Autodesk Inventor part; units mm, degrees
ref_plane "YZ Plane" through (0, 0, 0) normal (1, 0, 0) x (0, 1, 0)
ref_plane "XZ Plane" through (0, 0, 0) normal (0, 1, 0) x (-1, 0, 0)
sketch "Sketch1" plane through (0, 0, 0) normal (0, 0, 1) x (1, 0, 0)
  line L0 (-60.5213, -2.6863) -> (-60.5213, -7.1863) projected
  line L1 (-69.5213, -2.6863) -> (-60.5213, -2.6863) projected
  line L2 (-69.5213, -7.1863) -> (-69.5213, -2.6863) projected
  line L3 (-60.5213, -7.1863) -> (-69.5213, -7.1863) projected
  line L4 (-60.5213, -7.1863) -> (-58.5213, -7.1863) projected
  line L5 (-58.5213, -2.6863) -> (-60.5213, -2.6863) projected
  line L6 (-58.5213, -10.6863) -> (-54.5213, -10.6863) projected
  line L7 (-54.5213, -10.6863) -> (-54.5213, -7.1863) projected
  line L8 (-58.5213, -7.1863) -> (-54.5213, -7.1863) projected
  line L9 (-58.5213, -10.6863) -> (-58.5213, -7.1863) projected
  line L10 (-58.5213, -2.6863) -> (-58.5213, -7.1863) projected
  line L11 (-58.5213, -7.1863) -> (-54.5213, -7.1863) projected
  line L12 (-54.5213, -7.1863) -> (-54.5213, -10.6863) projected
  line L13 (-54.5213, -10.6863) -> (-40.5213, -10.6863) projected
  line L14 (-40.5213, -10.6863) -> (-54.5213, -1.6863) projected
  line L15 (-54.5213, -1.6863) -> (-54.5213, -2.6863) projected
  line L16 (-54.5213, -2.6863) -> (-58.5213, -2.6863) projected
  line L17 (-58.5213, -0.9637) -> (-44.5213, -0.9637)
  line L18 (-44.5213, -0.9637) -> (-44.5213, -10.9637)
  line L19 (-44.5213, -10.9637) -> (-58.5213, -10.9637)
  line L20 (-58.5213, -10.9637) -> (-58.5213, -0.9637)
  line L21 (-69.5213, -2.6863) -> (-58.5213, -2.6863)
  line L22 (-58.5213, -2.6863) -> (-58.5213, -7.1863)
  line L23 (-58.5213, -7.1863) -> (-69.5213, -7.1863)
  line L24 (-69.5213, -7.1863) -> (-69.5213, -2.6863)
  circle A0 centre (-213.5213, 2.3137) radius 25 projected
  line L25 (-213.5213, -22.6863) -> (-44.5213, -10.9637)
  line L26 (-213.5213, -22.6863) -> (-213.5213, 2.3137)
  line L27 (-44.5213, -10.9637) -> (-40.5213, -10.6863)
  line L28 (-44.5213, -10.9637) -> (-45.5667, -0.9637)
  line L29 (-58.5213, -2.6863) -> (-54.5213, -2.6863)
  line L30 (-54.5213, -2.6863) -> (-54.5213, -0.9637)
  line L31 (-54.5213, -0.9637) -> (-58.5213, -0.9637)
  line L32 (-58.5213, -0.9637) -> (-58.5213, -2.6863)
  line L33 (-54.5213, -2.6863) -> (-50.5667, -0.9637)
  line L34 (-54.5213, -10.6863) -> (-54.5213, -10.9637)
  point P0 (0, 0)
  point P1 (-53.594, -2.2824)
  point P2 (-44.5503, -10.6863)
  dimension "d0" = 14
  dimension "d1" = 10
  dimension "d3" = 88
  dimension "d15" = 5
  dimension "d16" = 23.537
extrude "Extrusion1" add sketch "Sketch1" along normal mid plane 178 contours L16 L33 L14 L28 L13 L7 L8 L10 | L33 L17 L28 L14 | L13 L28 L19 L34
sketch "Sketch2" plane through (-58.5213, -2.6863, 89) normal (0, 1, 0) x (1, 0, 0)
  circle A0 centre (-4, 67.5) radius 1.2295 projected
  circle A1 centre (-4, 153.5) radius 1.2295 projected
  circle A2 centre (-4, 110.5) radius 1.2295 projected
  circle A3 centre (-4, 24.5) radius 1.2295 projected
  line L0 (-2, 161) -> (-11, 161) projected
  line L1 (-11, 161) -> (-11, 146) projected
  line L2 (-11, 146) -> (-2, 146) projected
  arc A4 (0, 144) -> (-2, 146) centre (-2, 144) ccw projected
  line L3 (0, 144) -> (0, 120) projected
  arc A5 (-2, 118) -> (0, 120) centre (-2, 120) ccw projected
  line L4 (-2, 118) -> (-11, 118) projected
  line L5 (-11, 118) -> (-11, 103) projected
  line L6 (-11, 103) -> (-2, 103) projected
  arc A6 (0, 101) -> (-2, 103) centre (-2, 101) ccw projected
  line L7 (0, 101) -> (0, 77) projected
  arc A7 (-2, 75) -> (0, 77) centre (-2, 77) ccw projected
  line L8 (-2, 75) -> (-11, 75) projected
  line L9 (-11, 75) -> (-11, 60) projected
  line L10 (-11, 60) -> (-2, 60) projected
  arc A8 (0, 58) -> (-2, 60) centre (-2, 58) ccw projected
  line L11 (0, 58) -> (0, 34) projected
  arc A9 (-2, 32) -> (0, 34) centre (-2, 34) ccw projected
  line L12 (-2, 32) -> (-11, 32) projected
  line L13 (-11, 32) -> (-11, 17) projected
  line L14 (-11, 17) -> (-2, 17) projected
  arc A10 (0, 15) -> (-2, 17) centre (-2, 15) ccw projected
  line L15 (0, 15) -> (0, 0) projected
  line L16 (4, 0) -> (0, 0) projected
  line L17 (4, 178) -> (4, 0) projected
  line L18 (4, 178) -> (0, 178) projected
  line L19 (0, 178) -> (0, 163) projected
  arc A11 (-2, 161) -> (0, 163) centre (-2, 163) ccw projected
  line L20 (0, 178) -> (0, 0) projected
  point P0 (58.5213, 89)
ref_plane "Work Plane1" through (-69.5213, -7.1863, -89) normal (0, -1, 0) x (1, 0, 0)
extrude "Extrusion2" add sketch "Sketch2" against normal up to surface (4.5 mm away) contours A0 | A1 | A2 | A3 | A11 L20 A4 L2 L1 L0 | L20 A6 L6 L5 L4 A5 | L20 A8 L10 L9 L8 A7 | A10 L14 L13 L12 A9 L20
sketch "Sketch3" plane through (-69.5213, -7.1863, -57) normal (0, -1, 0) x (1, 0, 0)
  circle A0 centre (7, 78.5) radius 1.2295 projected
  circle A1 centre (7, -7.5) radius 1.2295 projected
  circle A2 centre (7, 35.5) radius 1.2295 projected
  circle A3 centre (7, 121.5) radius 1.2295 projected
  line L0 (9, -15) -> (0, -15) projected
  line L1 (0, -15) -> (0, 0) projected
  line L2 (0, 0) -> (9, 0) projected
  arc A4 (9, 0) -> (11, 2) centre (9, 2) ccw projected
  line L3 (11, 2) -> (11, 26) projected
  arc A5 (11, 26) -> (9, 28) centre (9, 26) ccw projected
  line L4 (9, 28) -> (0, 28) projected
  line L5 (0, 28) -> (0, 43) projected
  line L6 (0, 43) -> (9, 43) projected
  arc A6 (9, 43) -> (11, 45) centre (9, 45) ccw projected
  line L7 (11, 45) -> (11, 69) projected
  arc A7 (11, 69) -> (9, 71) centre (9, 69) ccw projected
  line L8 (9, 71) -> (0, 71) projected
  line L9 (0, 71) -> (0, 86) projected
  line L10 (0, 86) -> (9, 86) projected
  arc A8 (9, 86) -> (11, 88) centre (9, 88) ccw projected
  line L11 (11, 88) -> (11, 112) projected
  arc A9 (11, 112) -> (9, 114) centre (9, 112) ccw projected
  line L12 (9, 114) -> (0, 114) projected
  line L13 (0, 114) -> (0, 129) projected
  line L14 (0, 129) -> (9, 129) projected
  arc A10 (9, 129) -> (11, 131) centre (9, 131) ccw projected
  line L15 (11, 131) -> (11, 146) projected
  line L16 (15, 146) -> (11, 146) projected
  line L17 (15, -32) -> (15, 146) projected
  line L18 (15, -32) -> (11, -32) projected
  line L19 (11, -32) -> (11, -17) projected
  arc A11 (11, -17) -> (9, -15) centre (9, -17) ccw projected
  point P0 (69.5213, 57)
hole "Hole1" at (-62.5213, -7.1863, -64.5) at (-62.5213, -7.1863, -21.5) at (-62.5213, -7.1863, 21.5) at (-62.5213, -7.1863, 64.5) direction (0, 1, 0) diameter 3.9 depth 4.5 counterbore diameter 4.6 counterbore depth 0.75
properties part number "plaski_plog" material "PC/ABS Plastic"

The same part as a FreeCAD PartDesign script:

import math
import FreeCAD as App
import Part
import Sketcher
from FreeCAD import Vector
Q = App.Units.Quantity


def add_polygon(sketch, points):
    """Adds a closed chain of lines whose ends are joined by coincident constraints."""
    first, n = sketch.GeometryCount, len(points)
    for a, b in zip(points, points[1:] + points[:1]):
        sketch.addGeometry(Part.LineSegment(App.Vector(*a, 0), App.Vector(*b, 0)), False)
    for i in range(n):
        sketch.addConstraint(Sketcher.Constraint("Coincident", first + i, 2, first + (i + 1) % n, 1))

doc = App.newDocument("Part")
body = doc.addObject("PartDesign::Body", "Body")

# Sketch on XY plane
sketch1 = body.newObject("Sketcher::SketchObject", "Sketch")
sketch1.AttachmentSupport = (doc.getObject("XY_Plane"), [""])
sketch1.MapMode = "FlatFace"
add_polygon(sketch1, [(-54.5213, -2.6863), (-58.5213, -2.6863), (-58.5213, -7.1863), (-54.5213, -7.1863), (-54.5213, -10.9637), (-44.5213, -10.9637), (-45.5667, -0.9637), (-50.5667, -0.9637)])  # lines 0-7
sketch1.addConstraint(Sketcher.Constraint("Horizontal", 0))
sketch1.addConstraint(Sketcher.Constraint("Vertical", 1))
sketch1.addConstraint(Sketcher.Constraint("Horizontal", 2))
sketch1.addConstraint(Sketcher.Constraint("Vertical", 3))
sketch1.addConstraint(Sketcher.Constraint("Horizontal", 4))
sketch1.addConstraint(Sketcher.Constraint("Horizontal", 6))
sketch1.addConstraint(Sketcher.Constraint("Vertical", 3, 2, 7, 2))
sketch1.addConstraint(Sketcher.Constraint("DistanceX", 4, 1, 4, 2, Q("10 mm")))
sketch1.addConstraint(Sketcher.Constraint("DistanceX", 6, 2, 6, 1, Q("5 mm")))
sketch1.addConstraint(Sketcher.Constraint("DistanceX", 1, 2, 4, 2, Q("14 mm")))
sketch1.addConstraint(Sketcher.Constraint("DistanceY", 4, 2, 5, 2, Q("10 mm")))
sketch1.addConstraint(Sketcher.Constraint("DistanceY", 1, 2, 1, 1, Q("4.5 mm")))
sketch1.addConstraint(Sketcher.Constraint("DistanceY", 3, 2, 3, 1, Q("3.7774 mm")))
sketch1.addConstraint(Sketcher.Constraint("Distance", 5, Q("10.0545 mm")))
sketch1.addConstraint(Sketcher.Constraint("DistanceX", 0, 2, -1, 1, Q("58.5213 mm")))
sketch1.addConstraint(Sketcher.Constraint("DistanceY", 0, 2, -1, 1, Q("2.6863 mm")))
pad1 = body.newObject("PartDesign::Pad", "Pad")
pad1.Profile = sketch1
pad1.Length = 178
pad1.Midplane = True

# Sketch on XZ plane
sketch2 = body.newObject("Sketcher::SketchObject", "Sketch001")
sketch2.AttachmentSupport = (doc.getObject("XZ_Plane"), [""])
sketch2.MapMode = "FlatFace"
sketch2.AttachmentOffset = App.Placement(Vector(0, 0, 2.6863), App.Rotation())
sketch2.addGeometry(Part.LineSegment(Vector(-58.5213, 31, 0), Vector(-58.5213, 12, 0)), False)
sketch2.addGeometry(Part.ArcOfCircle(Part.Circle(Vector(-60.5213, 12, 0), Vector(0, 0, 1), 2), math.radians(0), math.radians(90)), False)
sketch2.addGeometry(Part.LineSegment(Vector(-60.5213, 14, 0), Vector(-69.5213, 14, 0)), False)
sketch2.addGeometry(Part.LineSegment(Vector(-69.5213, 14, 0), Vector(-69.5213, 29, 0)), False)
sketch2.addGeometry(Part.LineSegment(Vector(-69.5213, 29, 0), Vector(-60.5213, 29, 0)), False)
sketch2.addGeometry(Part.ArcOfCircle(Part.Circle(Vector(-60.5213, 31, 0), Vector(0, 0, 1), 2), math.radians(-90), math.radians(0)), False)
sketch2.addGeometry(Part.ArcOfCircle(Part.Circle(Vector(-60.5213, -74, 0), Vector(0, 0, 1), 2), math.radians(0), math.radians(90)), False)
sketch2.addGeometry(Part.LineSegment(Vector(-60.5213, -72, 0), Vector(-69.5213, -72, 0)), False)
sketch2.addGeometry(Part.LineSegment(Vector(-69.5213, -72, 0), Vector(-69.5213, -57, 0)), False)
sketch2.addGeometry(Part.LineSegment(Vector(-69.5213, -57, 0), Vector(-60.5213, -57, 0)), False)
sketch2.addGeometry(Part.ArcOfCircle(Part.Circle(Vector(-60.5213, -55, 0), Vector(0, 0, 1), 2), math.radians(-90), math.radians(0)), False)
sketch2.addGeometry(Part.LineSegment(Vector(-58.5213, -55, 0), Vector(-58.5213, -74, 0)), False)
sketch2.addGeometry(Part.LineSegment(Vector(-58.5213, -12, 0), Vector(-58.5213, -31, 0)), False)
sketch2.addGeometry(Part.ArcOfCircle(Part.Circle(Vector(-60.5213, -31, 0), Vector(0, 0, 1), 2), math.radians(0), math.radians(90)), False)
sketch2.addGeometry(Part.LineSegment(Vector(-60.5213, -29, 0), Vector(-69.5213, -29, 0)), False)
sketch2.addGeometry(Part.LineSegment(Vector(-69.5213, -29, 0), Vector(-69.5213, -14, 0)), False)
sketch2.addGeometry(Part.LineSegment(Vector(-69.5213, -14, 0), Vector(-60.5213, -14, 0)), False)
sketch2.addGeometry(Part.ArcOfCircle(Part.Circle(Vector(-60.5213, -12, 0), Vector(0, 0, 1), 2), math.radians(-90), math.radians(0)), False)
sketch2.addGeometry(Part.ArcOfCircle(Part.Circle(Vector(-60.5213, 74, 0), Vector(0, 0, 1), 2), math.radians(-90), math.radians(0)), False)
sketch2.addGeometry(Part.LineSegment(Vector(-58.5213, 74, 0), Vector(-58.5213, 55, 0)), False)
sketch2.addGeometry(Part.ArcOfCircle(Part.Circle(Vector(-60.5213, 55, 0), Vector(0, 0, 1), 2), math.radians(0), math.radians(90)), False)
sketch2.addGeometry(Part.LineSegment(Vector(-60.5213, 57, 0), Vector(-69.5213, 57, 0)), False)
sketch2.addGeometry(Part.LineSegment(Vector(-69.5213, 57, 0), Vector(-69.5213, 72, 0)), False)
sketch2.addGeometry(Part.LineSegment(Vector(-69.5213, 72, 0), Vector(-60.5213, 72, 0)), False)
sketch2.addConstraint(Sketcher.Constraint("Tangent", 0, 2, 1, 1))
sketch2.addConstraint(Sketcher.Constraint("Tangent", 1, 2, 2, 1))
sketch2.addConstraint(Sketcher.Constraint("Coincident", 2, 2, 3, 1))
sketch2.addConstraint(Sketcher.Constraint("Coincident", 3, 2, 4, 1))
sketch2.addConstraint(Sketcher.Constraint("Tangent", 4, 2, 5, 1))
sketch2.addConstraint(Sketcher.Constraint("Tangent", 5, 2, 0, 1))
sketch2.addConstraint(Sketcher.Constraint("Tangent", 6, 2, 7, 1))
sketch2.addConstraint(Sketcher.Constraint("Coincident", 7, 2, 8, 1))
sketch2.addConstraint(Sketcher.Constraint("Coincident", 8, 2, 9, 1))
sketch2.addConstraint(Sketcher.Constraint("Tangent", 9, 2, 10, 1))
sketch2.addConstraint(Sketcher.Constraint("Tangent", 10, 2, 11, 1))
sketch2.addConstraint(Sketcher.Constraint("Tangent", 11, 2, 6, 1))
sketch2.addConstraint(Sketcher.Constraint("Tangent", 12, 2, 13, 1))
sketch2.addConstraint(Sketcher.Constraint("Tangent", 13, 2, 14, 1))
sketch2.addConstraint(Sketcher.Constraint("Coincident", 14, 2, 15, 1))
sketch2.addConstraint(Sketcher.Constraint("Coincident", 15, 2, 16, 1))
sketch2.addConstraint(Sketcher.Constraint("Tangent", 16, 2, 17, 1))
sketch2.addConstraint(Sketcher.Constraint("Tangent", 17, 2, 12, 1))
sketch2.addConstraint(Sketcher.Constraint("Tangent", 18, 2, 19, 1))
sketch2.addConstraint(Sketcher.Constraint("Tangent", 19, 2, 20, 1))
sketch2.addConstraint(Sketcher.Constraint("Tangent", 20, 2, 21, 1))
sketch2.addConstraint(Sketcher.Constraint("Coincident", 21, 2, 22, 1))
sketch2.addConstraint(Sketcher.Constraint("Coincident", 22, 2, 23, 1))
sketch2.addConstraint(Sketcher.Constraint("Tangent", 23, 2, 18, 1))
sketch2.addConstraint(Sketcher.Constraint("Vertical", 0))
sketch2.addConstraint(Sketcher.Constraint("Horizontal", 2))
sketch2.addConstraint(Sketcher.Constraint("Vertical", 3))
sketch2.addConstraint(Sketcher.Constraint("Horizontal", 4))
sketch2.addConstraint(Sketcher.Constraint("Horizontal", 7))
sketch2.addConstraint(Sketcher.Constraint("Vertical", 8))
sketch2.addConstraint(Sketcher.Constraint("Horizontal", 9))
sketch2.addConstraint(Sketcher.Constraint("Vertical", 11))
sketch2.addConstraint(Sketcher.Constraint("Vertical", 12))
sketch2.addConstraint(Sketcher.Constraint("Horizontal", 14))
sketch2.addConstraint(Sketcher.Constraint("Vertical", 15))
sketch2.addConstraint(Sketcher.Constraint("Horizontal", 16))
sketch2.addConstraint(Sketcher.Constraint("Vertical", 19))
sketch2.addConstraint(Sketcher.Constraint("Horizontal", 21))
sketch2.addConstraint(Sketcher.Constraint("Vertical", 22))
sketch2.addConstraint(Sketcher.Constraint("Horizontal", 23))
sketch2.addConstraint(Sketcher.Constraint("Equal", 1, 5))
sketch2.addConstraint(Sketcher.Constraint("Equal", 5, 6))
sketch2.addConstraint(Sketcher.Constraint("Equal", 6, 10))
sketch2.addConstraint(Sketcher.Constraint("Equal", 10, 13))
sketch2.addConstraint(Sketcher.Constraint("Equal", 13, 17))
sketch2.addConstraint(Sketcher.Constraint("Equal", 17, 18))
sketch2.addConstraint(Sketcher.Constraint("Equal", 18, 20))
sketch2.addConstraint(Sketcher.Constraint("Symmetric", 5, 3, 13, 3, -1))
sketch2.addConstraint(Sketcher.Constraint("Symmetric", 6, 3, 18, 3, -1))
sketch2.addConstraint(Sketcher.Constraint("Symmetric", 2, 2, 15, 2, -1))
sketch2.addConstraint(Sketcher.Constraint("Symmetric", 8, 2, 21, 2, -1))
sketch2.addConstraint(Sketcher.Constraint("Vertical", 5, 3, 6, 3))
sketch2.addConstraint(Sketcher.Constraint("Vertical", 3, 2, 7, 2))
sketch2.addConstraint(Sketcher.Constraint("Equal", 3, 8))
sketch2.addConstraint(Sketcher.Constraint("Radius", 1, Q("2 mm")))
sketch2.addConstraint(Sketcher.Constraint("DistanceX", 2, 2, 2, 1, Q("9 mm")))
sketch2.addConstraint(Sketcher.Constraint("DistanceY", 0, 2, 0, 1, Q("19 mm")))
sketch2.addConstraint(Sketcher.Constraint("DistanceY", -1, 1, 1, 3, Q("12 mm")))
sketch2.addConstraint(Sketcher.Constraint("DistanceY", 6, 3, -1, 1, Q("74 mm")))
sketch2.addConstraint(Sketcher.Constraint("DistanceX", 1, 3, -1, 1, Q("60.5213 mm")))
pad2 = body.newObject("PartDesign::Pad", "Pad001")
pad2.Profile = sketch2
pad2.Length = 4.5

# Sketch on XZ plane
sketch3 = body.newObject("Sketcher::SketchObject", "Sketch002")
sketch3.AttachmentSupport = (doc.getObject("XZ_Plane"), [""])
sketch3.MapMode = "FlatFace"
sketch3.AttachmentOffset = App.Placement(Vector(0, 0, 7.1863), App.Rotation())
sketch3.addGeometry(Part.Circle(Vector(-62.5213, -64.5, 0), Vector(0, 0, 1), 1.95), False)
sketch3.addGeometry(Part.Circle(Vector(-62.5213, -21.5, 0), Vector(0, 0, 1), 1.95), False)
sketch3.addGeometry(Part.Circle(Vector(-62.5213, 21.5, 0), Vector(0, 0, 1), 1.95), False)
sketch3.addGeometry(Part.Circle(Vector(-62.5213, 64.5, 0), Vector(0, 0, 1), 1.95), False)
sketch3.addConstraint(Sketcher.Constraint("Equal", 0, 1))
sketch3.addConstraint(Sketcher.Constraint("Equal", 1, 2))
sketch3.addConstraint(Sketcher.Constraint("Equal", 2, 3))
sketch3.addConstraint(Sketcher.Constraint("Symmetric", 1, 3, 2, 3, -1))
sketch3.addConstraint(Sketcher.Constraint("Symmetric", 0, 3, 3, 3, -1))
sketch3.addConstraint(Sketcher.Constraint("Vertical", 0, 3, 1, 3))
sketch3.addConstraint(Sketcher.Constraint("Diameter", 0, Q("3.9 mm")))
sketch3.addConstraint(Sketcher.Constraint("DistanceY", 0, 3, 1, 3, Q("43 mm")))
sketch3.addConstraint(Sketcher.Constraint("DistanceY", 1, 3, 2, 3, Q("43 mm")))
sketch3.addConstraint(Sketcher.Constraint("DistanceX", 0, 3, -1, 1, Q("62.5213 mm")))
doc.recompute()
hole = body.newObject("PartDesign::Hole", "Hole")
hole.Profile = sketch3
hole.ThreadType = "None"
hole.Diameter = 3.9
hole.DepthType = "Dimension"
hole.Depth = 4.5
hole.DrillPoint = "Flat"
hole.HoleCutType = "Counterbore"
hole.HoleCutDiameter = 4.6
hole.HoleCutDepth = 0.75

doc.recompute()
